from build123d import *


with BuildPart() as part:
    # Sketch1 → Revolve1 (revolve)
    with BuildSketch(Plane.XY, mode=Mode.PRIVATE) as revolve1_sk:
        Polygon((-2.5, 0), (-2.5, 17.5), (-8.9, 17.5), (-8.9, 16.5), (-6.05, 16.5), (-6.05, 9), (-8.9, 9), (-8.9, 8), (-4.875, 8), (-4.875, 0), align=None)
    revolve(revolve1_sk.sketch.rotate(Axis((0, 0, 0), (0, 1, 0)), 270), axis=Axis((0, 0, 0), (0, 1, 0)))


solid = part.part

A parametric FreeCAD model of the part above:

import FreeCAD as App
import Part
import Sketcher
Q = App.Units.Quantity


def add_polygon(sketch, points):
    """Adds a closed chain of lines whose ends are joined by coincident constraints."""
    first, n = sketch.GeometryCount, len(points)
    for a, b in zip(points, points[1:] + points[:1]):
        sketch.addGeometry(Part.LineSegment(App.Vector(*a, 0), App.Vector(*b, 0)), False)
    for i in range(n):
        sketch.addConstraint(Sketcher.Constraint("Coincident", first + i, 2, first + (i + 1) % n, 1))

doc = App.newDocument("Part")
body = doc.addObject("PartDesign::Body", "Body")

sketch1 = body.newObject("Sketcher::SketchObject", "Sketch")
sketch1.AttachmentSupport = (doc.getObject("XY_Plane"), [""])
sketch1.MapMode = "FlatFace"
add_polygon(sketch1, [(-2.5, 0), (-2.5, 17.5), (-8.9, 17.5), (-8.9, 16.5), (-6, 16.5), (-6, 9), (-8.9, 9), (-8.9, 8), (-4.9, 8), (-4.9, 0)])
sketch1.addConstraint([
    Sketcher.Constraint("Vertical", 0),
    Sketcher.Constraint("Horizontal", 1),
    Sketcher.Constraint("Vertical", 2),
    Sketcher.Constraint("Horizontal", 3),
    Sketcher.Constraint("Vertical", 4),
    Sketcher.Constraint("Horizontal", 5),
    Sketcher.Constraint("Vertical", 6),
    Sketcher.Constraint("Horizontal", 7),
    Sketcher.Constraint("Vertical", 8),
    Sketcher.Constraint("Horizontal", 9),
    Sketcher.Constraint("PointOnObject", 8, 2, -1),
    Sketcher.Constraint("Vertical", 2, 2, 5, 2),
    Sketcher.Constraint("Equal", 2, 6),
    Sketcher.Constraint("DistanceY", 2, 2, 2, 1, Q("1 mm")),
    Sketcher.Constraint("DistanceY", 8, 2, 8, 1, Q("8 mm")),
    Sketcher.Constraint("DistanceX", 1, 2, 1, 1, Q("6.4 mm")),
    Sketcher.Constraint("DistanceY", 0, 1, 0, 2, Q("17.5 mm")),
    Sketcher.Constraint("DistanceX", 3, 1, 3, 2, Q("2.85 mm")),
    Sketcher.Constraint("DistanceX", 0, 2, -1, 1, Q("2.5 mm")),
    Sketcher.Constraint("DistanceX", 7, 1, 7, 2, Q("4.025 mm")),
])
revolution = body.newObject("PartDesign::Revolution", "Revolution")
revolution.Profile = sketch1
revolution.ReferenceAxis = (sketch1, ["V_Axis"])
revolution.Angle = 360

doc.recompute()
